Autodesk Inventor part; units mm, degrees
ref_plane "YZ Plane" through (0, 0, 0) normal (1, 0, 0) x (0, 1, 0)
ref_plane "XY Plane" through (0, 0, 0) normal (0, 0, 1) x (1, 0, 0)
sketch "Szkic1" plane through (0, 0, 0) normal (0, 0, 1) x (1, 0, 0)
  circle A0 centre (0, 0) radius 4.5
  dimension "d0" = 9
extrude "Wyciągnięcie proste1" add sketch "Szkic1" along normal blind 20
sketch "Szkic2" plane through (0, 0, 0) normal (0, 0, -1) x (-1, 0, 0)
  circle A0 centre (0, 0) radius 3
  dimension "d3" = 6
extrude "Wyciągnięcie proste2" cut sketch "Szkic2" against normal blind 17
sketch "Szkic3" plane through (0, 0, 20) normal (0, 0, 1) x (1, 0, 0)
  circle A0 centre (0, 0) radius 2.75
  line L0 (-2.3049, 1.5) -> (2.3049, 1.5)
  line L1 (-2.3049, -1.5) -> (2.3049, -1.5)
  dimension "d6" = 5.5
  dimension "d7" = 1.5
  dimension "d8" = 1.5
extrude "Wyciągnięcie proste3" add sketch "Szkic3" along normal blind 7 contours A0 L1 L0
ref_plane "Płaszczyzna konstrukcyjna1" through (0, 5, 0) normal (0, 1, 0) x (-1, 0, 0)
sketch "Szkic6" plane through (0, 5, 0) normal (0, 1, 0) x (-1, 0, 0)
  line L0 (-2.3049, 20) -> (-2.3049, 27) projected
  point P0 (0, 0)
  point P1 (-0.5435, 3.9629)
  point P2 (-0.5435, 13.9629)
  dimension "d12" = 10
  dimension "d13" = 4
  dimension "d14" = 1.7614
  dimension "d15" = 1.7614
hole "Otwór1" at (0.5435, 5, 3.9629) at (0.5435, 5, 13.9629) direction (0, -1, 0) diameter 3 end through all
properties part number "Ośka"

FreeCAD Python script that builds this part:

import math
import FreeCAD as App
import Part
import Sketcher

doc = App.newDocument("Part")
body = doc.addObject("PartDesign::Body", "Body")

# Sketch on XY plane
sketch1 = body.newObject("Sketcher::SketchObject", "Sketch")
sketch1.AttachmentSupport = (doc.getObject("XY_Plane"), [""])
sketch1.MapMode = "FlatFace"
sketch1.addGeometry(Part.Circle(App.Vector(0, 0, 0), App.Vector(0, 0, 1), 4.5), False)
sketch1.addConstraint([
    Sketcher.Constraint("Coincident", 0, 3, -1, 1),
    Sketcher.Constraint("Diameter", 0, 9.0),
])
pad1 = body.newObject("PartDesign::Pad", "Pad")
pad1.Profile = sketch1
pad1.Length = 20

# Sketch on XY plane
sketch2 = body.newObject("Sketcher::SketchObject", "Sketch001")
sketch2.AttachmentSupport = (doc.getObject("XY_Plane"), [""])
sketch2.MapMode = "FlatFace"
sketch2.addGeometry(Part.Circle(App.Vector(0, 0, 0), App.Vector(0, 0, 1), 3), False)
sketch2.addConstraint([
    Sketcher.Constraint("Coincident", 0, 3, -1, 1),
    Sketcher.Constraint("Diameter", 0, 6.0),
])
pocket1 = body.newObject("PartDesign::Pocket", "Pocket")
pocket1.Profile = sketch2
pocket1.Length = 17
pocket1.Reversed = True

# Sketch on XY plane
sketch3 = body.newObject("Sketcher::SketchObject", "Sketch002")
sketch3.AttachmentSupport = (doc.getObject("XY_Plane"), [""])
sketch3.MapMode = "FlatFace"
sketch3.AttachmentOffset = App.Placement(App.Vector(0, 0, 20), App.Rotation())
sketch3.addGeometry([
    Part.ArcOfCircle(Part.Circle(App.Vector(0, 0, 0), App.Vector(0, 0, 1), 2.75), math.radians(-33.055573), math.radians(33.055573)),
    Part.LineSegment(App.Vector(2.3049, 1.5, 0), App.Vector(-2.3049, 1.5, 0)),
    Part.ArcOfCircle(Part.Circle(App.Vector(0, 0, 0), App.Vector(0, 0, 1), 2.75), math.radians(146.944427), math.radians(213.055573)),
    Part.LineSegment(App.Vector(-2.3049, -1.5, 0), App.Vector(2.3049, -1.5, 0)),
], False)
sketch3.addConstraint([
    Sketcher.Constraint("Coincident", 0, 2, 1, 1),
    Sketcher.Constraint("Coincident", 1, 2, 2, 1),
    Sketcher.Constraint("Coincident", 2, 2, 3, 1),
    Sketcher.Constraint("Coincident", 3, 2, 0, 1),
    Sketcher.Constraint("Horizontal", 1),
    Sketcher.Constraint("Horizontal", 3),
    Sketcher.Constraint("Coincident", 0, 3, -1, 1),
    Sketcher.Constraint("Coincident", 2, 3, -1, 1),
    Sketcher.Constraint("Equal", 0, 2),
    Sketcher.Constraint("Vertical", 1, 2, 2, 2),
    Sketcher.Constraint("Radius", 0, 2.75),
    Sketcher.Constraint("DistanceY", -1, 1, 0, 2, 1.5),
])
pad2 = body.newObject("PartDesign::Pad", "Pad001")
pad2.Profile = sketch3
pad2.Length = 7

# Sketch on XZ plane
sketch4 = body.newObject("Sketcher::SketchObject", "Sketch003")
sketch4.AttachmentSupport = (doc.getObject("XZ_Plane"), [""])
sketch4.MapMode = "FlatFace"
sketch4.AttachmentOffset = App.Placement(App.Vector(0, 0, -5), App.Rotation())
sketch4.addGeometry([
    Part.Circle(App.Vector(0.5435, 3.9629, 0), App.Vector(0, 0, 1), 1.5),
    Part.Circle(App.Vector(0.5435, 13.9629, 0), App.Vector(0, 0, 1), 1.5),
], False)
sketch4.addConstraint([
    Sketcher.Constraint("Equal", 0, 1),
    Sketcher.Constraint("Vertical", 0, 3, 1, 3),
    Sketcher.Constraint("Diameter", 0, 3.0),
    Sketcher.Constraint("DistanceY", 0, 3, 1, 3, 10.0),
    Sketcher.Constraint("DistanceY", -1, 1, 0, 3, 3.963),
    Sketcher.Constraint("DistanceX", -1, 1, 0, 3, 0.5435),
])
doc.recompute()
hole = body.newObject("PartDesign::Hole", "Hole")
hole.Profile = sketch4
hole.ThreadType = "None"
hole.Diameter = 3
hole.DepthType = "ThroughAll"
hole.Reversed = True

doc.recompute()
